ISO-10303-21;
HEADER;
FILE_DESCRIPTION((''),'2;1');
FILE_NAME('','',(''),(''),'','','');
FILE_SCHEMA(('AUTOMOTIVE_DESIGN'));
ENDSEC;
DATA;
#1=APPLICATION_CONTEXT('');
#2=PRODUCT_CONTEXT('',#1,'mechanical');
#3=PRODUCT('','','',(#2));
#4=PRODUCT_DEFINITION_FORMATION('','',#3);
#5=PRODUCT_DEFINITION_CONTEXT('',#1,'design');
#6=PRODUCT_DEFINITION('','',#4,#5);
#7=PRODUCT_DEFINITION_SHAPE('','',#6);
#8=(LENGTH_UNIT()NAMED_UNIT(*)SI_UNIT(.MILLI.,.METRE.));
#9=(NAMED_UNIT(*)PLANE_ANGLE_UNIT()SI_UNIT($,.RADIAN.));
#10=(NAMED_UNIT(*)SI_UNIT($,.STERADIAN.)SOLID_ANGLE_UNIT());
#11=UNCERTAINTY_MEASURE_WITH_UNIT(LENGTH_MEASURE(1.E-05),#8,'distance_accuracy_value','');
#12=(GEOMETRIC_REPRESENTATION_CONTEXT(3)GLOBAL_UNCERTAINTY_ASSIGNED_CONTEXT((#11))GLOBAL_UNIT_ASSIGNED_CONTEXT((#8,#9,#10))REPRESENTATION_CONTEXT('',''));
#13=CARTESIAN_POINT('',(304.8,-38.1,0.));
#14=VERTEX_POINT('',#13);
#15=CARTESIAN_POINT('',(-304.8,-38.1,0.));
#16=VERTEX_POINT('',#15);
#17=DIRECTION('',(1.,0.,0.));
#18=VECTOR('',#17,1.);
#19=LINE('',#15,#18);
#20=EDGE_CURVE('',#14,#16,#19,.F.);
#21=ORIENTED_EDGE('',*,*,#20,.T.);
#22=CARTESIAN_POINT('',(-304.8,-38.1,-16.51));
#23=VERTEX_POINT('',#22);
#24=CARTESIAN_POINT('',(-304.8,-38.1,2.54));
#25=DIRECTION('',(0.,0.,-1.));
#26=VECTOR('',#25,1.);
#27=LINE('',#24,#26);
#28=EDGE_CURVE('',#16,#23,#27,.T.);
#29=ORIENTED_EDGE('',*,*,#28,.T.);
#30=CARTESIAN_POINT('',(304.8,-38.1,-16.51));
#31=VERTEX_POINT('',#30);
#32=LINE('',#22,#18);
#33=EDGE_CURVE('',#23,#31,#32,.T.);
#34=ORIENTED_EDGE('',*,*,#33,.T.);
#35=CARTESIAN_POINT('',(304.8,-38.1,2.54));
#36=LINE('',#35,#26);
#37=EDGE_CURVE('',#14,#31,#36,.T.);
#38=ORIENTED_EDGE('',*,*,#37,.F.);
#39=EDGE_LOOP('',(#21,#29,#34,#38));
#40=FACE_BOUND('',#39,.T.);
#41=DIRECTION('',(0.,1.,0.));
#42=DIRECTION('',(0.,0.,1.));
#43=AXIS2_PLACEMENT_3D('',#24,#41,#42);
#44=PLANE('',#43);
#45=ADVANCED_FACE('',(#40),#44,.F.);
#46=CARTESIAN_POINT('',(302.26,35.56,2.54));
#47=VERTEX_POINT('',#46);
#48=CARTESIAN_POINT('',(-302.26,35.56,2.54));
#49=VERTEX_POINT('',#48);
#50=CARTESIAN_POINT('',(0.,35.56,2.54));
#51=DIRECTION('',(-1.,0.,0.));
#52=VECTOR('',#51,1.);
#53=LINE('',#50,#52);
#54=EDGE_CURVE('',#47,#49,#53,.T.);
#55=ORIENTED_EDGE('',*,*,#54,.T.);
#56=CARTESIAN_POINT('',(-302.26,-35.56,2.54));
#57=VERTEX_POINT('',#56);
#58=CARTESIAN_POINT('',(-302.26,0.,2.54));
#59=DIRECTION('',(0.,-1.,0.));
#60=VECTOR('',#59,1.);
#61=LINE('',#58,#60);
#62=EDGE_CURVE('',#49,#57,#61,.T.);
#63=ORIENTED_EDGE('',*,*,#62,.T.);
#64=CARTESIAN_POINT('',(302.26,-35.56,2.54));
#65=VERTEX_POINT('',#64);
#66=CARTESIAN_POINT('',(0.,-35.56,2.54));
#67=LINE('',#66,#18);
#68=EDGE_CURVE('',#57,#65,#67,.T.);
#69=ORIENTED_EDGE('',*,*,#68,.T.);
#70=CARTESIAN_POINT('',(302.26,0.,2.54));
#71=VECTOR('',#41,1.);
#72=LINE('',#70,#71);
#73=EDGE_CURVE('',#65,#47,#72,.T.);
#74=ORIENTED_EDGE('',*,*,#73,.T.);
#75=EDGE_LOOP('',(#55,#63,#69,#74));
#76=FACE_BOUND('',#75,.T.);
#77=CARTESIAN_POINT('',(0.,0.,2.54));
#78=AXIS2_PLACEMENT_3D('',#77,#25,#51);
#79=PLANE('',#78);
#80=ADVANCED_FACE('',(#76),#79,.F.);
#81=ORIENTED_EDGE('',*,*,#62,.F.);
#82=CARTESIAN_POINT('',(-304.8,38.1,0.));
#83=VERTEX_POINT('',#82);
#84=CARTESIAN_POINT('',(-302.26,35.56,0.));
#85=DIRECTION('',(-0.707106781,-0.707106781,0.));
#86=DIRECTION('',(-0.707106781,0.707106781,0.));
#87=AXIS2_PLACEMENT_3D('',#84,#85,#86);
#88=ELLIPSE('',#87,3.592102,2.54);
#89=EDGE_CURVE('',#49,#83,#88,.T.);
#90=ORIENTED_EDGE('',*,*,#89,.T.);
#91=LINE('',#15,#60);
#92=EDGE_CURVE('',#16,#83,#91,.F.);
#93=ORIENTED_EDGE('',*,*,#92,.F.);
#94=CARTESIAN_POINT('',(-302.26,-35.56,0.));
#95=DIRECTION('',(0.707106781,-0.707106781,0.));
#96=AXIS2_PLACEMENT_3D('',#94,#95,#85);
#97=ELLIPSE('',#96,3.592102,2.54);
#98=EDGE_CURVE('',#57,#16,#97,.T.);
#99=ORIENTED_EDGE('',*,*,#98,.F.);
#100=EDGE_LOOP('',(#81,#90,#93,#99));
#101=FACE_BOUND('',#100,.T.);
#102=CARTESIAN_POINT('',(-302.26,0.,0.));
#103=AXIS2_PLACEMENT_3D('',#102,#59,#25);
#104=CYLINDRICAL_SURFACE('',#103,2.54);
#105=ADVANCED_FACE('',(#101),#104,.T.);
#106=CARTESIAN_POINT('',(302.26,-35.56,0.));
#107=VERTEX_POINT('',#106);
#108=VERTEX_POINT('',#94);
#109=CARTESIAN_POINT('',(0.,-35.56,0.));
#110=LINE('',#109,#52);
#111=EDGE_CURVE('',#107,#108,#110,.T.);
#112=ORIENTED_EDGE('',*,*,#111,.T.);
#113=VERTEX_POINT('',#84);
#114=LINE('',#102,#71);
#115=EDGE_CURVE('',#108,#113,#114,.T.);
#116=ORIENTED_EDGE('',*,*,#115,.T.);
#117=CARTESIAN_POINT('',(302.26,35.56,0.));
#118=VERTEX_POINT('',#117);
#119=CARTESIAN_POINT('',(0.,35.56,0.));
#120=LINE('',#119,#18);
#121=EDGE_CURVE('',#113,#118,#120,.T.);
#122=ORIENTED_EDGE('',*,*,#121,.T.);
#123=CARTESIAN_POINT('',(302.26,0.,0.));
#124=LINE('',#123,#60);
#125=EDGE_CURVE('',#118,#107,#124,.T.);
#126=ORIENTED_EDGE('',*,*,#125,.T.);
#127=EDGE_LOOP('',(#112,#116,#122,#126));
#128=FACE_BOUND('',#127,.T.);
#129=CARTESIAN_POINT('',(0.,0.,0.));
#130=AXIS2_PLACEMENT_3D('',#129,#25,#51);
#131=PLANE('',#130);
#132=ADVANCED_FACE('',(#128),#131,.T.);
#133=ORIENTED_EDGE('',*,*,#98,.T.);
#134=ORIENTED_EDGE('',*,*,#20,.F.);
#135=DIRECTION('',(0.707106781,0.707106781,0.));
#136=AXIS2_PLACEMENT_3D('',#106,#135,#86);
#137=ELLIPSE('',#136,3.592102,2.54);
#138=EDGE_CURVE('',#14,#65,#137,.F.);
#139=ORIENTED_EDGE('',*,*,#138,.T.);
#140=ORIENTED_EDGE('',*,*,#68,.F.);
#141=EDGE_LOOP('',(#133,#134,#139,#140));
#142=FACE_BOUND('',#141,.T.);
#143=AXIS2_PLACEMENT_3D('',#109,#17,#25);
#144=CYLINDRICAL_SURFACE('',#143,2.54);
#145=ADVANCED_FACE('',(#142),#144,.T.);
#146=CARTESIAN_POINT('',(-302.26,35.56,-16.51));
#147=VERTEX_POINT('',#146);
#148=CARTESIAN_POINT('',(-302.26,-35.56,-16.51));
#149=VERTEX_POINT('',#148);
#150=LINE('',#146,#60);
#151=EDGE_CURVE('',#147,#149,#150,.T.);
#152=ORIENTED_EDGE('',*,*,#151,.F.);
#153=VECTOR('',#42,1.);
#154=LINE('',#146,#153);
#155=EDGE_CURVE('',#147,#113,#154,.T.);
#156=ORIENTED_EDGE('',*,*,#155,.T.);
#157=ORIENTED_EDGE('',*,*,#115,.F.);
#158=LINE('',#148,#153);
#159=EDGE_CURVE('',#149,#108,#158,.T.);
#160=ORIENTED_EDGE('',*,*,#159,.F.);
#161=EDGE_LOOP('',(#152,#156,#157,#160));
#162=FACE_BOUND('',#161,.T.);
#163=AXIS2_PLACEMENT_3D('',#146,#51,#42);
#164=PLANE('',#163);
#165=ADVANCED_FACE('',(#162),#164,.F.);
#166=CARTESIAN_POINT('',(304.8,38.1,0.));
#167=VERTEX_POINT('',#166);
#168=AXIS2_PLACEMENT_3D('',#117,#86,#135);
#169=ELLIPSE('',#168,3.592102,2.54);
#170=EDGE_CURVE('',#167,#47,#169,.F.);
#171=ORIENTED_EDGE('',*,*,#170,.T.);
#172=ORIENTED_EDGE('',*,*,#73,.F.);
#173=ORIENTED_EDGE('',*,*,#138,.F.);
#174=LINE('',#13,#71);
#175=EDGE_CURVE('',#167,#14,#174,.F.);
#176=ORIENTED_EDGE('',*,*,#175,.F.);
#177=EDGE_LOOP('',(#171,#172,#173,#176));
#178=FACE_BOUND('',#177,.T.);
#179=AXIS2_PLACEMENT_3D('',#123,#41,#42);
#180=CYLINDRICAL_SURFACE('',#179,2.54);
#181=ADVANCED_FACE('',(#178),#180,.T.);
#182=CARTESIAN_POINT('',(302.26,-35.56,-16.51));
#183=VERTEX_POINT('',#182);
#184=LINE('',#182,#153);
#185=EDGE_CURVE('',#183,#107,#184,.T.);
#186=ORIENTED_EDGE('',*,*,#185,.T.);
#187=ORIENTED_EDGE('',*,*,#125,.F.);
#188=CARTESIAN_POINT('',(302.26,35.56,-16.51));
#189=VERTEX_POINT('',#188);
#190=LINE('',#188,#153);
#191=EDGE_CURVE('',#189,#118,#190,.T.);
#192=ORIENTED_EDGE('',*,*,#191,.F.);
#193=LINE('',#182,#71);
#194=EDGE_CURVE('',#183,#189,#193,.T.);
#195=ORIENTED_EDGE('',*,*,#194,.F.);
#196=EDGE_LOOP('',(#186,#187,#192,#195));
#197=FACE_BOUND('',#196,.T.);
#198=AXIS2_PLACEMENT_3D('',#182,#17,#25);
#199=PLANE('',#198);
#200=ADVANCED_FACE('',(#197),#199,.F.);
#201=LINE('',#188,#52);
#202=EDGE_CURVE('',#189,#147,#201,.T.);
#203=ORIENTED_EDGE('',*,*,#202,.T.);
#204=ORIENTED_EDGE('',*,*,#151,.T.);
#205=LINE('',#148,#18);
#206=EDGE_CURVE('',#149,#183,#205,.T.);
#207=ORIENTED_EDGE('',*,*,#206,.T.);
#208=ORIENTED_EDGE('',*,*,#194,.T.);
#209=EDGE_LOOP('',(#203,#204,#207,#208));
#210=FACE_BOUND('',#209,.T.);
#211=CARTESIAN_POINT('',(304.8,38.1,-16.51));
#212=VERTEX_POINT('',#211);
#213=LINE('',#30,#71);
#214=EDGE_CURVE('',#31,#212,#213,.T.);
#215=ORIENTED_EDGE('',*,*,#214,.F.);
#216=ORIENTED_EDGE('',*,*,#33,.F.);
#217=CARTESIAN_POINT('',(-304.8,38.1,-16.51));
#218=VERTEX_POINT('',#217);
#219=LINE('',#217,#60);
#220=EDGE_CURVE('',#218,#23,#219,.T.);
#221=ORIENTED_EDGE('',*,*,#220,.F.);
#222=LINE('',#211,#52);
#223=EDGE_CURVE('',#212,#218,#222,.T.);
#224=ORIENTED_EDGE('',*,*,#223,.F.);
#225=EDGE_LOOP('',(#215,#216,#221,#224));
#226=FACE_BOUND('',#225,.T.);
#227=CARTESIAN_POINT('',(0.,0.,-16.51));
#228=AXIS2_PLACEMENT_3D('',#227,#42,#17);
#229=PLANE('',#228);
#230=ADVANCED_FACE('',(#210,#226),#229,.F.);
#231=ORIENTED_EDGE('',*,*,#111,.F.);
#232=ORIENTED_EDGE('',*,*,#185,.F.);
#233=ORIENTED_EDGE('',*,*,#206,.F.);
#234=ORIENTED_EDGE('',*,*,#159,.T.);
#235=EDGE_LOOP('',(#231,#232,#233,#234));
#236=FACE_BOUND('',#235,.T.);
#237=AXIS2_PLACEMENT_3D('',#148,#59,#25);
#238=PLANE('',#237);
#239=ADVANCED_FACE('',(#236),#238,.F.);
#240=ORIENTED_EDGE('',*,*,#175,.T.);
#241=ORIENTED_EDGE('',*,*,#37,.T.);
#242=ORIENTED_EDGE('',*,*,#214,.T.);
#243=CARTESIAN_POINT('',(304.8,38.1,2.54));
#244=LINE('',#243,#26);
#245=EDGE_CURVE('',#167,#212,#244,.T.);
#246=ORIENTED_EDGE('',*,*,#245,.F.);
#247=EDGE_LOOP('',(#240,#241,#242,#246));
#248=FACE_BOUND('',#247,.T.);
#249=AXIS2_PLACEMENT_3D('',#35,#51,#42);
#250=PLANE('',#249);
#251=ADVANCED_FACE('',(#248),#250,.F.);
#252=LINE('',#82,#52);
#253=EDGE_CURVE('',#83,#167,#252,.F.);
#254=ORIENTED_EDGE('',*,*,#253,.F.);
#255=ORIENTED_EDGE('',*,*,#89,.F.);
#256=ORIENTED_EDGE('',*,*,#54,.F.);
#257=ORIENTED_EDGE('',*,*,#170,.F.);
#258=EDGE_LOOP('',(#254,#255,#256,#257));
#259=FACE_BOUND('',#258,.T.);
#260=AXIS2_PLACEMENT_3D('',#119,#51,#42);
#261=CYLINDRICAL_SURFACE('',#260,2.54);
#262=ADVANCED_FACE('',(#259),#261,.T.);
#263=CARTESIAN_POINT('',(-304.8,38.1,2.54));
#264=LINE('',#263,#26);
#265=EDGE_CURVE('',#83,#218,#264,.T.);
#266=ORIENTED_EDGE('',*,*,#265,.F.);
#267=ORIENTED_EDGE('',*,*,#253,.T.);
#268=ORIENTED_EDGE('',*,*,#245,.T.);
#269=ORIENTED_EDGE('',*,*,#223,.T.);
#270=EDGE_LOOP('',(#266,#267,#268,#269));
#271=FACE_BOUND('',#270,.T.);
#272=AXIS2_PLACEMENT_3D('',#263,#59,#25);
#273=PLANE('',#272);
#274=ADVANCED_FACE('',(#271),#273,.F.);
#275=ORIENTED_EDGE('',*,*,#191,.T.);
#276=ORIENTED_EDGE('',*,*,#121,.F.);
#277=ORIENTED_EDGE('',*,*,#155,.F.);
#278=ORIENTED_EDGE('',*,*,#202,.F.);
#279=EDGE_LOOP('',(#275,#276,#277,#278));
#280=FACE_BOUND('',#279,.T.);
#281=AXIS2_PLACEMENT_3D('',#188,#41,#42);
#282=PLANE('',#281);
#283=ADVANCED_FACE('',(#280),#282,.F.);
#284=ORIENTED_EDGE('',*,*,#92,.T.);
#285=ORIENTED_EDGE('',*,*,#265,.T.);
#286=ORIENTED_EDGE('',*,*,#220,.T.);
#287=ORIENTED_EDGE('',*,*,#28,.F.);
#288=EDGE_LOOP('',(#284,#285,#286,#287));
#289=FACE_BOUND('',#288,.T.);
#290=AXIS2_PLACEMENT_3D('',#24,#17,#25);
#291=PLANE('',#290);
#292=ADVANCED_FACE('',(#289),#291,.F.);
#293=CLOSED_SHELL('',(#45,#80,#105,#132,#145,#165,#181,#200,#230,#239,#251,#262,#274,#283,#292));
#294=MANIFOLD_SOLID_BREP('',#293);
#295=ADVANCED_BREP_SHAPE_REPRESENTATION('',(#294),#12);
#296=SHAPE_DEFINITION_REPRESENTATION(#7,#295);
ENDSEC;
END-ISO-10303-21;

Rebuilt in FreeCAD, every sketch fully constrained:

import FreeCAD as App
import Part
import Sketcher
Q = App.Units.Quantity


def edges_at(feature, points):
    """Names of the edges that pass closest to the given points."""
    edges = feature.Shape.Edges
    near = lambda p: min(range(len(edges)), key=lambda i: edges[i].distToShape(Part.Vertex(*p))[0])
    return sorted({f"Edge{near(p) + 1}" for p in points})

doc = App.newDocument("Part")
body = doc.addObject("PartDesign::Body", "Body")

# Sketch on XY plane
sketch1 = body.newObject("Sketcher::SketchObject", "Sketch")
sketch1.AttachmentSupport = (doc.getObject("XY_Plane"), [""])
sketch1.MapMode = "FlatFace"
sketch1.addGeometry([
    Part.LineSegment(App.Vector(-304.8, 38.1, 0), App.Vector(-304.8, -38.1, 0)),
    Part.LineSegment(App.Vector(-304.8, -38.1, 0), App.Vector(304.8, -38.1, 0)),
    Part.LineSegment(App.Vector(304.8, -38.1, 0), App.Vector(304.8, 38.1, 0)),
    Part.LineSegment(App.Vector(304.8, 38.1, 0), App.Vector(-304.8, 38.1, 0)),
], False)
sketch1.addConstraint([
    Sketcher.Constraint("Coincident", 0, 2, 1, 1),
    Sketcher.Constraint("Coincident", 1, 2, 2, 1),
    Sketcher.Constraint("Coincident", 2, 2, 3, 1),
    Sketcher.Constraint("Coincident", 3, 2, 0, 1),
    Sketcher.Constraint("Vertical", 0),
    Sketcher.Constraint("Horizontal", 1),
    Sketcher.Constraint("Vertical", 2),
    Sketcher.Constraint("Horizontal", 3),
    Sketcher.Constraint("Symmetric", 0, 2, 2, 2, -1, 1),
    Sketcher.Constraint("DistanceX", 1, 1, 1, 2, Q("24 in")),
    Sketcher.Constraint("DistanceY", 0, 2, 0, 1, Q("3 in")),
])
pad1 = body.newObject("PartDesign::Pad", "Pad")
pad1.Profile = sketch1
pad1.Length = Q("0.1 in")

# Sketch on XY plane
sketch2 = body.newObject("Sketcher::SketchObject", "Sketch001")
sketch2.AttachmentSupport = (doc.getObject("XY_Plane"), [""])
sketch2.MapMode = "FlatFace"
sketch2.AttachmentOffset = App.Placement(App.Vector(0, 0, 0.1 * 25.4), App.Rotation())
sketch2.addGeometry([
    Part.LineSegment(App.Vector(-304.8, 38.1, 0), App.Vector(-304.8, -38.1, 0)),  # 0
    Part.LineSegment(App.Vector(-304.8, -38.1, 0), App.Vector(304.8, -38.1, 0)),  # 1
    Part.LineSegment(App.Vector(304.8, -38.1, 0), App.Vector(304.8, 38.1, 0)),  # 2
    Part.LineSegment(App.Vector(304.8, 38.1, 0), App.Vector(-304.8, 38.1, 0)),  # 3
    Part.LineSegment(App.Vector(302.26, -35.56, 0), App.Vector(-302.26, -35.56, 0)),  # 4
    Part.LineSegment(App.Vector(-302.26, -35.56, 0), App.Vector(-302.26, 35.56, 0)),  # 5
    Part.LineSegment(App.Vector(-302.26, 35.56, 0), App.Vector(302.26, 35.56, 0)),  # 6
    Part.LineSegment(App.Vector(302.26, 35.56, 0), App.Vector(302.26, -35.56, 0)),  # 7
], False)
sketch2.addConstraint([
    Sketcher.Constraint("Coincident", 0, 2, 1, 1),
    Sketcher.Constraint("Coincident", 1, 2, 2, 1),
    Sketcher.Constraint("Coincident", 2, 2, 3, 1),
    Sketcher.Constraint("Coincident", 3, 2, 0, 1),
    Sketcher.Constraint("Coincident", 4, 2, 5, 1),
    Sketcher.Constraint("Coincident", 5, 2, 6, 1),
    Sketcher.Constraint("Coincident", 6, 2, 7, 1),
    Sketcher.Constraint("Coincident", 7, 2, 4, 1),
    Sketcher.Constraint("Vertical", 0),
    Sketcher.Constraint("Horizontal", 1),
    Sketcher.Constraint("Vertical", 2),
    Sketcher.Constraint("Horizontal", 3),
    Sketcher.Constraint("Horizontal", 4),
    Sketcher.Constraint("Vertical", 5),
    Sketcher.Constraint("Horizontal", 6),
    Sketcher.Constraint("Vertical", 7),
    Sketcher.Constraint("Symmetric", 0, 2, 2, 2, -1, 1),
    Sketcher.Constraint("Symmetric", 4, 2, 6, 2, -1, 1),
    Sketcher.Constraint("DistanceX", 1, 1, 1, 2, Q("24 in")),
    Sketcher.Constraint("DistanceY", 0, 2, 0, 1, Q("3 in")),
    Sketcher.Constraint("DistanceX", 4, 2, 4, 1, Q("23.8 in")),
    Sketcher.Constraint("DistanceY", 5, 1, 5, 2, Q("2.8 in")),
])
pad2 = body.newObject("PartDesign::Pad", "Pad001")
pad2.Profile = sketch2
pad2.Length = Q("0.75 in")
pad2.Reversed = True
doc.recompute()

fillet = body.newObject("PartDesign::Fillet", "Fillet")
fillet.Base = (pad2, edges_at(pad2, [
    (-304.8, 0, 2.54),
    (0, -38.1, 2.54),
    (304.8, 0, 2.54),
    (0, 38.1, 2.54),
]))
fillet.Radius = Q("0.1 in")

doc.recompute()
